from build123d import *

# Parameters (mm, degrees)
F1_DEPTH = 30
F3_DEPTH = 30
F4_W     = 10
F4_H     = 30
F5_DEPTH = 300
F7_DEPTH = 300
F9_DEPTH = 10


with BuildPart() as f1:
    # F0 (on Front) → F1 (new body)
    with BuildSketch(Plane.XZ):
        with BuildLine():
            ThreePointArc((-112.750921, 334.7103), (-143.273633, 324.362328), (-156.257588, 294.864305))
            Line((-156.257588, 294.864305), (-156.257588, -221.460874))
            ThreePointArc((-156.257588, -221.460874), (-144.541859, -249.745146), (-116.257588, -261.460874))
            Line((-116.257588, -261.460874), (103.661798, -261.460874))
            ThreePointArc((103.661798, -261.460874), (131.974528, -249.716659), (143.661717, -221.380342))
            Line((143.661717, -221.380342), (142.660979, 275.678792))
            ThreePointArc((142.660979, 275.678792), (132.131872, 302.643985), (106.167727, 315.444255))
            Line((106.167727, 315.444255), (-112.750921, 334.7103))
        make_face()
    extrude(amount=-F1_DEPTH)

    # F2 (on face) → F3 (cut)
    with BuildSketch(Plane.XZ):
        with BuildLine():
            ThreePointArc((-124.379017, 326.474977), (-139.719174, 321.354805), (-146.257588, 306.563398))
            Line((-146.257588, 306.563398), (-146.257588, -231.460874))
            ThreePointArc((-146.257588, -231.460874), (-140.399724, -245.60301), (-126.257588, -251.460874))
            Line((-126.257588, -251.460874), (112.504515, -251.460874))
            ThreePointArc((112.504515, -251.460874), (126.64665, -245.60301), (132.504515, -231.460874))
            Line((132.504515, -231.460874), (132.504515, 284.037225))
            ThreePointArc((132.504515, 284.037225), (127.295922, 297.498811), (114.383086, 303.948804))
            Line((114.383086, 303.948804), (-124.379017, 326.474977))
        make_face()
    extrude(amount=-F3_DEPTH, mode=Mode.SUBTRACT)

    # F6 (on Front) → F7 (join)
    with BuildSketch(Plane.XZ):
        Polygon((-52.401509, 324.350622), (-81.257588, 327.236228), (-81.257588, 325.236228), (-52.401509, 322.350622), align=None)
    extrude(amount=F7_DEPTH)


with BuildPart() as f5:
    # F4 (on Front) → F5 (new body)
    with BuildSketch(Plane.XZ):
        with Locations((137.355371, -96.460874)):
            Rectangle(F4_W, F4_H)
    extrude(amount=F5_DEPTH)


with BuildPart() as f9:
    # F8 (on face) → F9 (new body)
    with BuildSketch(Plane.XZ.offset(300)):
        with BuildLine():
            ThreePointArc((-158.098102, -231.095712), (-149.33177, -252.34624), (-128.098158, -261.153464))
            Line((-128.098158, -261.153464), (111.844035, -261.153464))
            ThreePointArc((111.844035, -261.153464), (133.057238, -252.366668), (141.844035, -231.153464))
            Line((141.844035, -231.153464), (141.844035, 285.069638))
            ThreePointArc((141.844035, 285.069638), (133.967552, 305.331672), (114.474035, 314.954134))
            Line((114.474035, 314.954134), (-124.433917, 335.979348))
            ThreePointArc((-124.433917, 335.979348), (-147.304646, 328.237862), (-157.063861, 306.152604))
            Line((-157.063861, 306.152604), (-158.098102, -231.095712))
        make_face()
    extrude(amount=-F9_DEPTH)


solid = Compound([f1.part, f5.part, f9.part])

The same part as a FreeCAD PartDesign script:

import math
import FreeCAD as App
import Part
import Sketcher

V = App.Vector
Q = App.Units.Quantity


def add_polygon(sketch, points):
    """Adds a closed chain of lines whose ends are joined by coincident constraints."""
    first, n = sketch.GeometryCount, len(points)
    for a, b in zip(points, points[1:] + points[:1]):
        sketch.addGeometry(Part.LineSegment(App.Vector(*a, 0), App.Vector(*b, 0)), False)
    for i in range(n):
        sketch.addConstraint(Sketcher.Constraint("Coincident", first + i, 2, first + (i + 1) % n, 1))

doc = App.newDocument("Part")
body = doc.addObject("PartDesign::Body", "Body")

sketch1 = body.newObject("Sketcher::SketchObject", "Sketch")
sketch1.AttachmentSupport = (doc.getObject("XZ_Plane"), [""])
sketch1.MapMode = "FlatFace"
sketch1.addGeometry(Part.ArcOfCircle(Part.Circle(V(-116, 295, 0), V(0, 0, 1), 40), math.radians(85), math.radians(180)), False)
sketch1.addGeometry(Part.LineSegment(V(-156, 295, 0), V(-156, -221, 0)), False)
sketch1.addGeometry(Part.ArcOfCircle(Part.Circle(V(-116, -221, 0), V(0, 0, 1), 40), math.radians(180), math.radians(270)), False)
sketch1.addGeometry(Part.LineSegment(V(-116, -261, 0), V(104, -261, 0)), False)
sketch1.addGeometry(Part.ArcOfCircle(Part.Circle(V(104, -221, 0), V(0, 0, 1), 40), math.radians(-90), math.radians(0)), False)
sketch1.addGeometry(Part.LineSegment(V(144, -221, 0), V(143, 276, 0)), False)
sketch1.addGeometry(Part.ArcOfCircle(Part.Circle(V(103, 276, 0), V(0, 0, 1), 40), math.radians(0), math.radians(85)), False)
sketch1.addGeometry(Part.LineSegment(V(106, 315, 0), V(-113, 335, 0)), False)
sketch1.addConstraint(Sketcher.Constraint("Tangent", 0, 2, 1, 1))
sketch1.addConstraint(Sketcher.Constraint("Tangent", 1, 2, 2, 1))
sketch1.addConstraint(Sketcher.Constraint("Tangent", 2, 2, 3, 1))
sketch1.addConstraint(Sketcher.Constraint("Tangent", 3, 2, 4, 1))
sketch1.addConstraint(Sketcher.Constraint("Tangent", 4, 2, 5, 1))
sketch1.addConstraint(Sketcher.Constraint("Tangent", 5, 2, 6, 1))
sketch1.addConstraint(Sketcher.Constraint("Tangent", 6, 2, 7, 1))
sketch1.addConstraint(Sketcher.Constraint("Tangent", 7, 2, 0, 1))
sketch1.addConstraint(Sketcher.Constraint("Vertical", 1))
sketch1.addConstraint(Sketcher.Constraint("Horizontal", 3))
sketch1.addConstraint(Sketcher.Constraint("Equal", 0, 2))
sketch1.addConstraint(Sketcher.Constraint("Equal", 2, 4))
sketch1.addConstraint(Sketcher.Constraint("Equal", 2, 6))
sketch1.addConstraint(Sketcher.Constraint("Radius", 0, Q("39.999999 mm")))
sketch1.addConstraint(Sketcher.Constraint("DistanceY", 1, 2, 1, 1, Q("516.325179 mm")))
sketch1.addConstraint(Sketcher.Constraint("DistanceX", -1, 1, 4, 3, Q("103.6618 mm")))
sketch1.addConstraint(Sketcher.Constraint("DistanceY", -1, 1, 7, 2, Q("334.7103 mm")))
sketch1.addConstraint(Sketcher.Constraint("DistanceX", 7, 2, 5, 2, Q("255.4119 mm")))
sketch1.addConstraint(Sketcher.Constraint("Distance", 5, Q("497.060141 mm")))
sketch1.addConstraint(Sketcher.Constraint("DistanceX", 3, 1, 3, 2, Q("219.919386 mm")))
pad1 = body.newObject("PartDesign::Pad", "Pad")
pad1.Profile = sketch1
pad1.Length = 30
pad1.Reversed = True

sketch2 = body.newObject("Sketcher::SketchObject", "Sketch001")
sketch2.AttachmentSupport = (doc.getObject("XZ_Plane"), [""])
sketch2.MapMode = "FlatFace"
sketch2.addGeometry(Part.ArcOfCircle(Part.Circle(V(-126, 307, 0), V(0, 0, 1), 20), math.radians(85), math.radians(180)), False)
sketch2.addGeometry(Part.LineSegment(V(-146, 307, 0), V(-146, -231, 0)), False)
sketch2.addGeometry(Part.ArcOfCircle(Part.Circle(V(-126, -231, 0), V(0, 0, 1), 20), math.radians(180), math.radians(270)), False)
sketch2.addGeometry(Part.LineSegment(V(-126, -251, 0), V(113, -251, 0)), False)
sketch2.addGeometry(Part.ArcOfCircle(Part.Circle(V(113, -231, 0), V(0, 0, 1), 20), math.radians(-90), math.radians(0)), False)
sketch2.addGeometry(Part.LineSegment(V(133, -231, 0), V(133, 284, 0)), False)
sketch2.addGeometry(Part.ArcOfCircle(Part.Circle(V(113, 284, 0), V(0, 0, 1), 20), math.radians(0), math.radians(85)), False)
sketch2.addGeometry(Part.LineSegment(V(114, 304, 0), V(-124, 326, 0)), False)
sketch2.addConstraint(Sketcher.Constraint("Tangent", 0, 2, 1, 1))
sketch2.addConstraint(Sketcher.Constraint("Tangent", 1, 2, 2, 1))
sketch2.addConstraint(Sketcher.Constraint("Tangent", 2, 2, 3, 1))
sketch2.addConstraint(Sketcher.Constraint("Tangent", 3, 2, 4, 1))
sketch2.addConstraint(Sketcher.Constraint("Tangent", 4, 2, 5, 1))
sketch2.addConstraint(Sketcher.Constraint("Tangent", 5, 2, 6, 1))
sketch2.addConstraint(Sketcher.Constraint("Tangent", 6, 2, 7, 1))
sketch2.addConstraint(Sketcher.Constraint("Tangent", 7, 2, 0, 1))
sketch2.addConstraint(Sketcher.Constraint("Vertical", 1))
sketch2.addConstraint(Sketcher.Constraint("Horizontal", 3))
sketch2.addConstraint(Sketcher.Constraint("Vertical", 5))
sketch2.addConstraint(Sketcher.Constraint("Equal", 0, 2))
sketch2.addConstraint(Sketcher.Constraint("Equal", 2, 4))
sketch2.addConstraint(Sketcher.Constraint("Equal", 4, 6))
sketch2.addConstraint(Sketcher.Constraint("Radius", 0, Q("19.999999 mm")))
sketch2.addConstraint(Sketcher.Constraint("DistanceY", 5, 1, 5, 2, Q("515.498099 mm")))
sketch2.addConstraint(Sketcher.Constraint("DistanceY", 1, 2, 1, 1, Q("538.024272 mm")))
sketch2.addConstraint(Sketcher.Constraint("DistanceY", -1, 1, 0, 3, Q("306.563399 mm")))
sketch2.addConstraint(Sketcher.Constraint("DistanceX", 3, 1, 3, 2, Q("238.762103 mm")))
sketch2.addConstraint(Sketcher.Constraint("DistanceX", 0, 3, -1, 1, Q("126.257589 mm")))
pocket1 = body.newObject("PartDesign::Pocket", "Pocket")
pocket1.Profile = sketch2
pocket1.Length = 30

sketch3 = body.newObject("Sketcher::SketchObject", "Sketch002")
sketch3.AttachmentSupport = (doc.getObject("XZ_Plane"), [""])
sketch3.MapMode = "FlatFace"
add_polygon(sketch3, [(-52.4, 324.4), (-81.3, 327.2), (-81.3, 325.2), (-52.4, 322.4)])
sketch3.addConstraint(Sketcher.Constraint("Vertical", 1))
sketch3.addConstraint(Sketcher.Constraint("Vertical", 3))
sketch3.addConstraint(Sketcher.Constraint("Parallel", 0, 2))
sketch3.addConstraint(Sketcher.Constraint("DistanceY", 1, 2, 1, 1, Q("2 mm")))
sketch3.addConstraint(Sketcher.Constraint("Distance", 0, Q("29 mm")))
sketch3.addConstraint(Sketcher.Constraint("DistanceX", 0, 2, -1, 1, Q("81.257588 mm")))
sketch3.addConstraint(Sketcher.Constraint("DistanceY", -1, 1, 0, 2, Q("327.236228 mm")))
sketch3.addConstraint(Sketcher.Constraint("DistanceX", 2, 2, -1, 1, Q("52.401509 mm")))
pad2 = body.newObject("PartDesign::Pad", "Pad001")
pad2.Profile = sketch3
pad2.Length = 300
body2 = doc.addObject("PartDesign::Body", "Body001")

sketch4 = body2.newObject("Sketcher::SketchObject", "Sketch003")
sketch4.AttachmentSupport = (doc.getObject("XZ_Plane001"), [""])
sketch4.MapMode = "FlatFace"
add_polygon(sketch4, [(132, -81), (132, -111), (142, -111), (142, -81)])
sketch4.addConstraint(Sketcher.Constraint("Vertical", 0))
sketch4.addConstraint(Sketcher.Constraint("Horizontal", 1))
sketch4.addConstraint(Sketcher.Constraint("Vertical", 2))
sketch4.addConstraint(Sketcher.Constraint("Horizontal", 3))
sketch4.addConstraint(Sketcher.Constraint("DistanceX", 1, 1, 1, 2, Q("10 mm")))
sketch4.addConstraint(Sketcher.Constraint("DistanceY", 0, 2, 0, 1, Q("30 mm")))
sketch4.addConstraint(Sketcher.Constraint("DistanceX", -1, 1, 0, 2, Q("132.355371 mm")))
sketch4.addConstraint(Sketcher.Constraint("DistanceY", 0, 2, -1, 1, Q("111.460874 mm")))
pad3 = body2.newObject("PartDesign::Pad", "Pad002")
pad3.Profile = sketch4
pad3.Length = 300
body3 = doc.addObject("PartDesign::Body", "Body002")

sketch5 = body3.newObject("Sketcher::SketchObject", "Sketch004")
sketch5.AttachmentSupport = (doc.getObject("XZ_Plane002"), [""])
sketch5.MapMode = "FlatFace"
sketch5.AttachmentOffset = App.Placement(V(0, 0, 300), App.Rotation())
sketch5.addGeometry(Part.ArcOfCircle(Part.Circle(V(-128.09816, -231.153466, 0), V(0, 0, 1), 29.999998), math.radians(179.889698), math.radians(270.000003)), False)
sketch5.addGeometry(Part.LineSegment(V(-128.098158, -261.153464, 0), V(111.844035, -261.153464, 0)), False)
sketch5.addGeometry(Part.ArcOfCircle(Part.Circle(V(111.844035, -231.153464, 0), V(0, 0, 1), 30), math.radians(-90), math.radians(0)), False)
sketch5.addGeometry(Part.LineSegment(V(141.844035, -231.153464, 0), V(141.844035, 285.069638, 0)), False)
sketch5.addGeometry(Part.ArcOfCircle(Part.Circle(V(111.844036, 285.069639, 0), V(0, 0, 1), 29.999999), math.radians(-0.000002), math.radians(84.970616)), False)
sketch5.addGeometry(Part.LineSegment(V(114.474035, 314.954134, 0), V(-124.433917, 335.979348, 0)), False)
sketch5.addGeometry(Part.ArcOfCircle(Part.Circle(V(-127.063917, 306.094853, 0), V(0, 0, 1), 29.999999), math.radians(84.970613), math.radians(179.889703)), False)
sketch5.addGeometry(Part.LineSegment(V(-157.063861, 306.152604, 0), V(-158.098102, -231.095712, 0)), False)
sketch5.addConstraint(Sketcher.Constraint("Tangent", 0, 2, 1, 1))
sketch5.addConstraint(Sketcher.Constraint("Tangent", 1, 2, 2, 1))
sketch5.addConstraint(Sketcher.Constraint("Tangent", 2, 2, 3, 1))
sketch5.addConstraint(Sketcher.Constraint("Tangent", 3, 2, 4, 1))
sketch5.addConstraint(Sketcher.Constraint("Tangent", 4, 2, 5, 1))
sketch5.addConstraint(Sketcher.Constraint("Tangent", 5, 2, 6, 1))
sketch5.addConstraint(Sketcher.Constraint("Tangent", 6, 2, 7, 1))
sketch5.addConstraint(Sketcher.Constraint("Tangent", 7, 2, 0, 1))
sketch5.addConstraint(Sketcher.Constraint("Horizontal", 1))
sketch5.addConstraint(Sketcher.Constraint("Vertical", 3))
sketch5.addConstraint(Sketcher.Constraint("Equal", 0, 2))
sketch5.addConstraint(Sketcher.Constraint("Equal", 2, 4))
sketch5.addConstraint(Sketcher.Constraint("Equal", 4, 6))
sketch5.addConstraint(Sketcher.Constraint("Radius", 2, Q("30 mm")))
sketch5.addConstraint(Sketcher.Constraint("DistanceX", 4, 3, 4, 2, Q("2.629999 mm")))
sketch5.addConstraint(Sketcher.Constraint("DistanceY", 3, 1, 3, 2, Q("516.223102 mm")))
sketch5.addConstraint(Sketcher.Constraint("Distance", 7, Q("537.249311 mm")))
sketch5.addConstraint(Sketcher.Constraint("DistanceX", 1, 1, 1, 2, Q("239.942193 mm")))
sketch5.addConstraint(Sketcher.Constraint("DistanceX", 0, 3, -1, 1, Q("128.09816 mm")))
sketch5.addConstraint(Sketcher.Constraint("DistanceY", -1, 1, 4, 3, Q("285.069639 mm")))
pad4 = body3.newObject("PartDesign::Pad", "Pad003")
pad4.Profile = sketch5
pad4.Length = 10
pad4.Reversed = True

doc.recompute()
